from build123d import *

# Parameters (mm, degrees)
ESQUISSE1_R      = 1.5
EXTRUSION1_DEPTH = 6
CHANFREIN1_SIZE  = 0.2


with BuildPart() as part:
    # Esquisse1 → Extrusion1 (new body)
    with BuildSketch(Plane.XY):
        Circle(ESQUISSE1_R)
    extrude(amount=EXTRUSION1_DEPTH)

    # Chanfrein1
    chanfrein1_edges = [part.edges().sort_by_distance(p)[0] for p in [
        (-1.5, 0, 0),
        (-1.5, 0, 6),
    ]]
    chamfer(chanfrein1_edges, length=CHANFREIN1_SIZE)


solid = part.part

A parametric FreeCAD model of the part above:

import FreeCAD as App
import Part
import Sketcher
from FreeCAD import Vector
Q = App.Units.Quantity


def edges_at(feature, points):
    """Names of the edges that pass closest to the given points."""
    edges = feature.Shape.Edges
    near = lambda p: min(range(len(edges)), key=lambda i: edges[i].distToShape(Part.Vertex(*p))[0])
    return sorted({f"Edge{near(p) + 1}" for p in points})

doc = App.newDocument("Part")
params = doc.addObject("Spreadsheet::Sheet", "Params")
for row, (alias, value) in enumerate([
    ("sketch1_diameter", "3 mm"),
    ("pad1_length", "6 mm"),
    ("chamfer_size", "0.2 mm"),
], start=1):
    params.set(f"A{row}", alias)
    params.set(f"B{row}", "=" + value)
    params.setAlias(f"B{row}", alias)

body = doc.addObject("PartDesign::Body", "Body")

# Sketch on XY plane
sketch1 = body.newObject("Sketcher::SketchObject", "Sketch")
sketch1.AttachmentSupport = (doc.getObject("XY_Plane"), [""])
sketch1.MapMode = "FlatFace"
sketch1.addGeometry(Part.Circle(Vector(0, 0, 0), Vector(0, 0, 1), 1.5), False)
sketch1.addConstraint(Sketcher.Constraint("Coincident", 0, 3, -1, 1))
sketch1.addConstraint(Sketcher.Constraint("Diameter", 0, Q("3 mm")))
sketch1.setExpression("Constraints[1]", "Params.sketch1_diameter")
pad1 = body.newObject("PartDesign::Pad", "Pad")
pad1.Profile = sketch1
pad1.setExpression("Length", "Params.pad1_length")
doc.recompute()

chamfer = body.newObject("PartDesign::Chamfer", "Chamfer")
chamfer.Base = (pad1, edges_at(pad1, [(-1.5, 0, 0), (-1.5, 0, 6)]))
chamfer.setExpression("Size", "Params.chamfer_size")

doc.recompute()
